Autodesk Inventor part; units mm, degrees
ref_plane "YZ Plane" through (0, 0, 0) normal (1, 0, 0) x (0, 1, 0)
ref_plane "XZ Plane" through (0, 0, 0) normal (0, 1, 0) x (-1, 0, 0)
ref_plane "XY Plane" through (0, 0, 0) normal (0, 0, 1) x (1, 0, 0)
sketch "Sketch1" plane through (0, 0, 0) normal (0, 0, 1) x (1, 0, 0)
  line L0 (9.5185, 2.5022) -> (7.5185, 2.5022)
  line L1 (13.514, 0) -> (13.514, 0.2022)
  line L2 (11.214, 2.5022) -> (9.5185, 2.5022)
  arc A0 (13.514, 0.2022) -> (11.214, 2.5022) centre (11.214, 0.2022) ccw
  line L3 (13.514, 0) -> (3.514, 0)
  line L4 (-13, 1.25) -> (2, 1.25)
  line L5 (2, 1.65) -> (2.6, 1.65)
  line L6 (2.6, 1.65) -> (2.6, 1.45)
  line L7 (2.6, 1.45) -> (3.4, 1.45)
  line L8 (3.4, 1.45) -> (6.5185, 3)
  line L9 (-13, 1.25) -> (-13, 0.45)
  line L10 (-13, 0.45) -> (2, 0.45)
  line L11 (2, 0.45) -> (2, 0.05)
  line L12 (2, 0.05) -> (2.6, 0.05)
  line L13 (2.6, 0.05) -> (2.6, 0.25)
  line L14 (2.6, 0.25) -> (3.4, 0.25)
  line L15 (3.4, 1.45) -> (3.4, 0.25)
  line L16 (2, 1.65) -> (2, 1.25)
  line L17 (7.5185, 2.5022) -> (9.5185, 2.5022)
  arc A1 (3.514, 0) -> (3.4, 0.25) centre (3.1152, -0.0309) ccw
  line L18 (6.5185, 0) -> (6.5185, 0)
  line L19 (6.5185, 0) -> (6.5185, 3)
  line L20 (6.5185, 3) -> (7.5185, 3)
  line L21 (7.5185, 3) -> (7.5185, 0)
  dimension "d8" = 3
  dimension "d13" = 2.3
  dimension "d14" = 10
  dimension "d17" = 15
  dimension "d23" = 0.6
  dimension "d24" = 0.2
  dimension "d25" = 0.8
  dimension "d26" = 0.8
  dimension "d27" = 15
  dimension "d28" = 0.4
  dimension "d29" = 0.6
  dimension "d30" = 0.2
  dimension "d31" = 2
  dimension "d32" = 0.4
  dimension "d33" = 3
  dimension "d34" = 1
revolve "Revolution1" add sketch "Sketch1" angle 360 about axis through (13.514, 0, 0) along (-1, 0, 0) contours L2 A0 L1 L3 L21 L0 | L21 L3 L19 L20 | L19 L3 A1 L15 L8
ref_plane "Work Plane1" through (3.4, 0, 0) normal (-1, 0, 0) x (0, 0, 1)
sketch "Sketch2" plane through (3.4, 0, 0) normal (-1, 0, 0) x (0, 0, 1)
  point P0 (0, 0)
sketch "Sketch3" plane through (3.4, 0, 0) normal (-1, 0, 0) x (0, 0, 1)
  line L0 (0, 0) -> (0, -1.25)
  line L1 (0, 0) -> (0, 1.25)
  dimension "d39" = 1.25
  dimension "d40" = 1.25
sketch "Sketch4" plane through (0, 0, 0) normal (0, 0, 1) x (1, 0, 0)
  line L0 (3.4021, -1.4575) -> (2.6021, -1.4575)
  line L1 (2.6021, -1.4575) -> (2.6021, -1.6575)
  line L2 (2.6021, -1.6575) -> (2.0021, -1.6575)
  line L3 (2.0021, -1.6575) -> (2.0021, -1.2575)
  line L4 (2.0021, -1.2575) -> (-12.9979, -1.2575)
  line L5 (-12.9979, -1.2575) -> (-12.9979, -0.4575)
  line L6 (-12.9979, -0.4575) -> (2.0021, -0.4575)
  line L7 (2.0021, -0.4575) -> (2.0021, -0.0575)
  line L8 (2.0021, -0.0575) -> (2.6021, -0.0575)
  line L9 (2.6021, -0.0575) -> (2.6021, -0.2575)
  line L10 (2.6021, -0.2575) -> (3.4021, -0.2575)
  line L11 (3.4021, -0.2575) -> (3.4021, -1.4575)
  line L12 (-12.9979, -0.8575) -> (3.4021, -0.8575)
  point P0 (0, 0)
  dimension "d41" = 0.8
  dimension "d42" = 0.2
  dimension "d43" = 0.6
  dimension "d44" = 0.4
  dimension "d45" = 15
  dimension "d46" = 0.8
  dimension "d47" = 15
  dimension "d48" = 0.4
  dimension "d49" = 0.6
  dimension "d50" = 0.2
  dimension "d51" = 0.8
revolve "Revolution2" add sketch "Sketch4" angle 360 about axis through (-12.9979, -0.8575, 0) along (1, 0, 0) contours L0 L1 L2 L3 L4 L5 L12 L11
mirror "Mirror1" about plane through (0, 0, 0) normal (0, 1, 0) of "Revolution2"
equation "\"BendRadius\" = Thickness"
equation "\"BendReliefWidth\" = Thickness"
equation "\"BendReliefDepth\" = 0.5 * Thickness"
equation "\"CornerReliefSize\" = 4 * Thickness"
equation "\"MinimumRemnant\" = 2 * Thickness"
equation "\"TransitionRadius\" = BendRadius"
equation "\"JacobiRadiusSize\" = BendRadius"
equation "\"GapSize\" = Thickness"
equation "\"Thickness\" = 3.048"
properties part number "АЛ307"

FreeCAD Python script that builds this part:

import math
import FreeCAD as App
import Part
import Sketcher

V = App.Vector
Q = App.Units.Quantity


def add_polygon(sketch, points):
    """Adds a closed chain of lines whose ends are joined by coincident constraints."""
    first, n = sketch.GeometryCount, len(points)
    for a, b in zip(points, points[1:] + points[:1]):
        sketch.addGeometry(Part.LineSegment(App.Vector(*a, 0), App.Vector(*b, 0)), False)
    for i in range(n):
        sketch.addConstraint(Sketcher.Constraint("Coincident", first + i, 2, first + (i + 1) % n, 1))

doc = App.newDocument("Part")
body = doc.addObject("PartDesign::Body", "Body")

# Sketch on XY plane
sketch1 = doc.addObject("Sketcher::SketchObject", "Sketch")
body.addObject(sketch1)
sketch1.AttachmentSupport = (doc.XY_Plane, [""])
sketch1.MapMode = "FlatFace"
sketch1.addGeometry([
    Part.LineSegment(V(11.21, 2.5, 0), V(7.52, 2.5, 0)),  # 0
    Part.LineSegment(V(7.52, 2.5, 0), V(7.52, 3, 0)),  # 1
    Part.LineSegment(V(7.52, 3, 0), V(6.52, 3, 0)),  # 2
    Part.LineSegment(V(6.52, 3, 0), V(3.4, 1.45, 0)),  # 3
    Part.LineSegment(V(3.4, 1.45, 0), V(3.4, 0.25, 0)),  # 4
    Part.ArcOfCircle(Part.Circle(V(3.12, -0.03, 0), V(0, 0, 1), 0.4), math.radians(4), math.radians(45)),  # 5
    Part.LineSegment(V(3.51, 0, 0), V(13.51, 0, 0)),  # 6
    Part.LineSegment(V(13.51, 0, 0), V(13.51, 0.2, 0)),  # 7
    Part.ArcOfCircle(Part.Circle(V(11.21, 0.2, 0), V(0, 0, 1), 2.3), math.radians(0), math.radians(90)),  # 8
], False)
sketch1.addConstraint([
    Sketcher.Constraint("Coincident", 0, 2, 1, 1),
    Sketcher.Constraint("Coincident", 1, 2, 2, 1),
    Sketcher.Constraint("Coincident", 2, 2, 3, 1),
    Sketcher.Constraint("Coincident", 3, 2, 4, 1),
    Sketcher.Constraint("Coincident", 4, 2, 5, 2),
    Sketcher.Constraint("Coincident", 5, 1, 6, 1),
    Sketcher.Constraint("Coincident", 6, 2, 7, 1),
    Sketcher.Constraint("Tangent", 7, 2, 8, 1),
    Sketcher.Constraint("Tangent", 8, 2, 0, 1),
    Sketcher.Constraint("Horizontal", 0),
    Sketcher.Constraint("Vertical", 1),
    Sketcher.Constraint("Horizontal", 2),
    Sketcher.Constraint("Vertical", 4),
    Sketcher.Constraint("Horizontal", 6),
    Sketcher.Constraint("Vertical", 7),
    Sketcher.Constraint("PointOnObject", 5, 1, -1),
    Sketcher.Constraint("Radius", 5, 0.4),
    Sketcher.Constraint("Radius", 8, 2.3),
    Sketcher.Constraint("DistanceX", 2, 2, 2, 1, 1.0),
    Sketcher.Constraint("DistanceX", 6, 1, 6, 2, 10.0),
    Sketcher.Constraint("DistanceY", -1, 1, 1, 2, 3.0),
    Sketcher.Constraint("DistanceY", 4, 2, 4, 1, 1.2),
    Sketcher.Constraint("DistanceX", -1, 1, 3, 2, 3.4),
    Sketcher.Constraint("Angle", 3, Q("-153.571 deg")),
    Sketcher.Constraint("DistanceY", -1, 1, 3, 2, 1.45),
    Sketcher.Constraint("DistanceX", 0, 2, 0, 1, 3.6955),
    Sketcher.Constraint("DistanceY", 1, 1, 1, 2, 0.4978),
])
revolution = doc.addObject("PartDesign::Revolution", "Revolution")
body.addObject(revolution)
revolution.Profile = sketch1
revolution.ReferenceAxis = (sketch1, ["H_Axis"])
revolution.Angle = 360

# Sketch on XY plane
sketch2 = doc.addObject("Sketcher::SketchObject", "Sketch001")
body.addObject(sketch2)
sketch2.AttachmentSupport = (doc.XY_Plane, [""])
sketch2.MapMode = "FlatFace"
add_polygon(sketch2, [(2.6, -1.46), (3.4, -1.46), (3.4, -0.86), (-13, -0.86), (-13, -1.26), (2, -1.26), (2, -1.66), (2.6, -1.66)])  # lines 0-7
sketch2.addGeometry(Part.LineSegment(V(-13, -0.86, 0), V(3.4, -0.86, 0)), True)  # axis
sketch2.addConstraint([
    Sketcher.Constraint("Horizontal", 0),
    Sketcher.Constraint("Vertical", 1),
    Sketcher.Constraint("Horizontal", 2),
    Sketcher.Constraint("Vertical", 3),
    Sketcher.Constraint("Horizontal", 4),
    Sketcher.Constraint("Vertical", 5),
    Sketcher.Constraint("Horizontal", 6),
    Sketcher.Constraint("Vertical", 7),
    Sketcher.Constraint("Horizontal", 8),
    Sketcher.Constraint("Coincident", 8, 1, 2, 2),
    Sketcher.Constraint("Vertical", 0, 2, 8, 2),
    Sketcher.Constraint("Equal", 6, 1),
    Sketcher.Constraint("Equal", 3, 5),
    Sketcher.Constraint("DistanceX", 4, 1, 4, 2, 15.0),
    Sketcher.Constraint("DistanceX", 0, 1, 0, 2, 0.8),
    Sketcher.Constraint("DistanceX", 6, 1, 6, 2, 0.6),
    Sketcher.Constraint("DistanceY", 3, 2, 3, 1, 0.4),
    Sketcher.Constraint("DistanceX", -1, 1, 0, 2, 3.402),
    Sketcher.Constraint("DistanceY", 0, 2, -1, 1, 1.4575),
])
revolution2 = doc.addObject("PartDesign::Revolution", "Revolution001")
body.addObject(revolution2)
revolution2.Profile = sketch2
revolution2.ReferenceAxis = (sketch2, ["Axis0"])
revolution2.Angle = 360
doc.recompute()

mirrored = doc.addObject("PartDesign::Mirrored", "Mirrored")
body.addObject(mirrored)
mirrored.Originals = [revolution2]
mirrored.MirrorPlane = (doc.XZ_Plane, [""])
body.Tip = mirrored

doc.recompute()
